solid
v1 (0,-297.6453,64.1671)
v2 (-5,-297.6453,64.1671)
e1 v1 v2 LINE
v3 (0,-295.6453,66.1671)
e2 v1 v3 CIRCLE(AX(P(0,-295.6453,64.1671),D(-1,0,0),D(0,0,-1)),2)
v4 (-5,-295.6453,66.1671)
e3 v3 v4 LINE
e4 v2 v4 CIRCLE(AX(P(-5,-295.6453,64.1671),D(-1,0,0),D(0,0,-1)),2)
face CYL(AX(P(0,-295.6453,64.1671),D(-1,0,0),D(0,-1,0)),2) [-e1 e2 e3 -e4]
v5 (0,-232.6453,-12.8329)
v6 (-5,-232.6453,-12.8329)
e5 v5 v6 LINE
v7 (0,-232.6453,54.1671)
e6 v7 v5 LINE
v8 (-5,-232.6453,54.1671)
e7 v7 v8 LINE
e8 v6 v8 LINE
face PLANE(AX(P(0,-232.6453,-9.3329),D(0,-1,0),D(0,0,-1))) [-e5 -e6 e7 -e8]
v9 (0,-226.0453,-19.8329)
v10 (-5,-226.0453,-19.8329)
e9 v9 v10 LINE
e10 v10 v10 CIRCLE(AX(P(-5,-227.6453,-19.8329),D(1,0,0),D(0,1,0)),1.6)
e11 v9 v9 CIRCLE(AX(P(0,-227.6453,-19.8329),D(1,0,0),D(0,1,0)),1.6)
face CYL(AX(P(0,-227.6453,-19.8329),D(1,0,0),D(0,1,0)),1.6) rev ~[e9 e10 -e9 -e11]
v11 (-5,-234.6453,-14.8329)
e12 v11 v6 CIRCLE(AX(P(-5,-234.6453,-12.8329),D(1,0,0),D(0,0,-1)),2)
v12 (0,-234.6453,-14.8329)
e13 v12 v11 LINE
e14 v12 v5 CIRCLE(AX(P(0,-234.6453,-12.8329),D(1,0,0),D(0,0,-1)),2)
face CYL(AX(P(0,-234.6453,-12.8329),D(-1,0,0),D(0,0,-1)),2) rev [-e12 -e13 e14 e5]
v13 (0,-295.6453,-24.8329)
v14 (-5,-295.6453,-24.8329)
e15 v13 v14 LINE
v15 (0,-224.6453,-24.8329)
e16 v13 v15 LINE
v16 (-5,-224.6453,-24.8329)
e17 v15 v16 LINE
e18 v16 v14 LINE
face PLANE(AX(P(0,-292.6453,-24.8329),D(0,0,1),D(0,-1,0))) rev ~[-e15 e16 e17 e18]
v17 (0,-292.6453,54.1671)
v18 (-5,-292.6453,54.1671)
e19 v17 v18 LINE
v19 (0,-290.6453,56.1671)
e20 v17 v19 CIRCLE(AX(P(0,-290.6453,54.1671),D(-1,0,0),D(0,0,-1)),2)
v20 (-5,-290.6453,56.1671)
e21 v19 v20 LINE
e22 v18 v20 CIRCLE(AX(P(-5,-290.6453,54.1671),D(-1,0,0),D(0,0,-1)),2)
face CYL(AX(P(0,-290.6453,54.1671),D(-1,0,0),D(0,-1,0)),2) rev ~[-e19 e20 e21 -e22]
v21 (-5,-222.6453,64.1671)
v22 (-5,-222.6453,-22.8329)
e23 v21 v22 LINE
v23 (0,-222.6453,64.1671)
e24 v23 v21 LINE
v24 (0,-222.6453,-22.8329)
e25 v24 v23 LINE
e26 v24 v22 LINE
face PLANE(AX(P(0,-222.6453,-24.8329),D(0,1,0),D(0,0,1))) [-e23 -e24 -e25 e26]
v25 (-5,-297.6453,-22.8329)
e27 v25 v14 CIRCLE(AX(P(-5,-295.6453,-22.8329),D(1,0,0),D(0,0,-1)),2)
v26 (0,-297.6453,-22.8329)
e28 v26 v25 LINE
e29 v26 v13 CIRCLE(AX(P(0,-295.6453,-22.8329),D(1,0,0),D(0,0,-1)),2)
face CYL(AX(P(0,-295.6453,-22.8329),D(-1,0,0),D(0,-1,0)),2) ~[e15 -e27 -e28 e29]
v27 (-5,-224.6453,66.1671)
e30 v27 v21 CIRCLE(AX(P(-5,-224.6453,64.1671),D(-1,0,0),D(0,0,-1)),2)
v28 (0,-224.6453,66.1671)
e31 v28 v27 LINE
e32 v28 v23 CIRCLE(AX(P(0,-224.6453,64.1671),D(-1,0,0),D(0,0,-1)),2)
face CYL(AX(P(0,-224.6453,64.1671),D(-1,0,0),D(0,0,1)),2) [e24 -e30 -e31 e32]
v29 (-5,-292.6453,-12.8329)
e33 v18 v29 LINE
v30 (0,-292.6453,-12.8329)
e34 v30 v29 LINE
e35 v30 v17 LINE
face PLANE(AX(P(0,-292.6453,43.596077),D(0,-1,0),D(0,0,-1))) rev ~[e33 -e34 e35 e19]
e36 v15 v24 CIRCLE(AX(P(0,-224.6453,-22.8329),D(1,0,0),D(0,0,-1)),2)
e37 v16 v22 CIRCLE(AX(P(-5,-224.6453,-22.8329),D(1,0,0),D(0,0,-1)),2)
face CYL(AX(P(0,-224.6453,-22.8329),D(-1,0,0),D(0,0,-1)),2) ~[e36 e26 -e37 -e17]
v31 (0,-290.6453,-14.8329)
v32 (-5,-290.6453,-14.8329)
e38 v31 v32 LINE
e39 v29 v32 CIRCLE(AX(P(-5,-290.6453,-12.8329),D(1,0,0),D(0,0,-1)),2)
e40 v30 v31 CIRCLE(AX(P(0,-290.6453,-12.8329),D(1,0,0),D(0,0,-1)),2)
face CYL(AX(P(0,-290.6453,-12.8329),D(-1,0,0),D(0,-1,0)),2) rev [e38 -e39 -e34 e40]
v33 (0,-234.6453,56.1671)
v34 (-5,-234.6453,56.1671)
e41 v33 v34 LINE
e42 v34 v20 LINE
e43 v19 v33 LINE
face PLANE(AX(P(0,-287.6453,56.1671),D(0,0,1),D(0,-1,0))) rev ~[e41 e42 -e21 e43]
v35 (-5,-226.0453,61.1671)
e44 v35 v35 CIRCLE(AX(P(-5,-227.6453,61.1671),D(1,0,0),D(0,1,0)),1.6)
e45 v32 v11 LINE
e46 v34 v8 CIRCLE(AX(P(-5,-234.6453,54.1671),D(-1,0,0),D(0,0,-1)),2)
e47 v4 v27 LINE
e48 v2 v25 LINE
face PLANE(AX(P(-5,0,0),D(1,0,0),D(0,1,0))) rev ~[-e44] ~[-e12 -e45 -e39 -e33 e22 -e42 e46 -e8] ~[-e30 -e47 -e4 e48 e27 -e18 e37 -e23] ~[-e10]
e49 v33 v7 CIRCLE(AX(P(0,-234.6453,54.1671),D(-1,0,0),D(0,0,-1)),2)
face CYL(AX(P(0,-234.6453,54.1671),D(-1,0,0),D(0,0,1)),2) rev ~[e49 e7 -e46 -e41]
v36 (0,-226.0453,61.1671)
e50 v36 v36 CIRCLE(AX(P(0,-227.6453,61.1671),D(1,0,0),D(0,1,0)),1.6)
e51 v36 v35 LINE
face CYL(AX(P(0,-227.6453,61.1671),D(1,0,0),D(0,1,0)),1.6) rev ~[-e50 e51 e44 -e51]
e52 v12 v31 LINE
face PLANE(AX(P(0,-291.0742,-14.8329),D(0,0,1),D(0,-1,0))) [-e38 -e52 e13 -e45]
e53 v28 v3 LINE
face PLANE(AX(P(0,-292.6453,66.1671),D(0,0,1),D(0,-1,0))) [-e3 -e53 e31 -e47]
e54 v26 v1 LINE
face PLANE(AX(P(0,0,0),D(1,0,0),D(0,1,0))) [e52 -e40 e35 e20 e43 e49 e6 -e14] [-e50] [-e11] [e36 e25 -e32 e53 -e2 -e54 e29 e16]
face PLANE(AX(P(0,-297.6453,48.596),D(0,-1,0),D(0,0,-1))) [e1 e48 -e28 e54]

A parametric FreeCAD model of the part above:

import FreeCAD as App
import Part
import Sketcher

V = App.Vector
Q = App.Units.Quantity


def edges_at(feature, points):
    """Names of the edges that pass closest to the given points."""
    edges = feature.Shape.Edges
    near = lambda p: min(range(len(edges)), key=lambda i: edges[i].distToShape(Part.Vertex(*p))[0])
    return sorted({f"Edge{near(p) + 1}" for p in points})


def add_polygon(sketch, points):
    """Adds a closed chain of lines whose ends are joined by coincident constraints."""
    first, n = sketch.GeometryCount, len(points)
    for a, b in zip(points, points[1:] + points[:1]):
        sketch.addGeometry(Part.LineSegment(App.Vector(*a, 0), App.Vector(*b, 0)), False)
    for i in range(n):
        sketch.addConstraint(Sketcher.Constraint("Coincident", first + i, 2, first + (i + 1) % n, 1))

doc = App.newDocument("Part")
body = doc.addObject("PartDesign::Body", "Body")

sketch1 = body.newObject("Sketcher::SketchObject", "Sketch")
sketch1.AttachmentSupport = (doc.getObject("YZ_Plane"), [""])
sketch1.MapMode = "FlatFace"
add_polygon(sketch1, [(-297.6, -24.8), (-222.6, -24.8), (-222.6, 66.2), (-297.6, 66.2)])
add_polygon(sketch1, [(-292.6, 56.2), (-232.6, 56.2), (-232.6, -14.8), (-292.6, -14.8)])
sketch1.addGeometry(Part.Circle(V(-227.6, -19.8, 0), V(0, 0, 1), 1.6), False)
sketch1.addGeometry(Part.Circle(V(-227.6, 61.2, 0), V(0, 0, 1), 1.6), False)
sketch1.addConstraint([
    Sketcher.Constraint("Horizontal", 0),
    Sketcher.Constraint("Vertical", 1),
    Sketcher.Constraint("Horizontal", 2),
    Sketcher.Constraint("Vertical", 3),
    Sketcher.Constraint("Horizontal", 4),
    Sketcher.Constraint("Vertical", 5),
    Sketcher.Constraint("Horizontal", 6),
    Sketcher.Constraint("Vertical", 7),
    Sketcher.Constraint("Equal", 8, 9),
    Sketcher.Constraint("Vertical", 8, 3, 9, 3),
    Sketcher.Constraint("Diameter", 8, Q("3.2 mm")),
    Sketcher.Constraint("DistanceX", 8, 3, 0, 2, Q("5 mm")),
    Sketcher.Constraint("DistanceY", 0, 2, 8, 3, Q("5 mm")),
    Sketcher.Constraint("DistanceY", 9, 3, 1, 2, Q("5 mm")),
    Sketcher.Constraint("DistanceX", 4, 2, 9, 3, Q("5 mm")),
    Sketcher.Constraint("DistanceY", 4, 2, 9, 3, Q("5 mm")),
    Sketcher.Constraint("DistanceY", 8, 3, 5, 2, Q("5 mm")),
    Sketcher.Constraint("DistanceX", 3, 2, 6, 2, Q("5 mm")),
    Sketcher.Constraint("DistanceX", 0, 1, 0, 2, Q("75 mm")),
    Sketcher.Constraint("DistanceY", 1, 1, 1, 2, Q("91 mm")),
    Sketcher.Constraint("DistanceY", 8, 3, -1, 1, Q("19.833 mm")),
    Sketcher.Constraint("DistanceX", 8, 3, -1, 1, Q("227.6453 mm")),
])
pad1 = body.newObject("PartDesign::Pad", "Pad")
pad1.Profile = sketch1
pad1.Length = 5
pad1.Reversed = True
doc.recompute()

fillet = body.newObject("PartDesign::Fillet", "Fillet")
fillet.Base = (pad1, edges_at(pad1, [
    (-2.5, -297.645, 66.167),
    (-2.5, -222.645, 66.167),
    (-2.5, -222.645, -24.833),
    (-2.5, -297.645, -24.833),
    (-2.5, -292.645, -14.833),
    (-2.5, -232.645, -14.833),
    (-2.5, -232.645, 56.167),
    (-2.5, -292.645, 56.167),
]))
fillet.Radius = 2

doc.recompute()
